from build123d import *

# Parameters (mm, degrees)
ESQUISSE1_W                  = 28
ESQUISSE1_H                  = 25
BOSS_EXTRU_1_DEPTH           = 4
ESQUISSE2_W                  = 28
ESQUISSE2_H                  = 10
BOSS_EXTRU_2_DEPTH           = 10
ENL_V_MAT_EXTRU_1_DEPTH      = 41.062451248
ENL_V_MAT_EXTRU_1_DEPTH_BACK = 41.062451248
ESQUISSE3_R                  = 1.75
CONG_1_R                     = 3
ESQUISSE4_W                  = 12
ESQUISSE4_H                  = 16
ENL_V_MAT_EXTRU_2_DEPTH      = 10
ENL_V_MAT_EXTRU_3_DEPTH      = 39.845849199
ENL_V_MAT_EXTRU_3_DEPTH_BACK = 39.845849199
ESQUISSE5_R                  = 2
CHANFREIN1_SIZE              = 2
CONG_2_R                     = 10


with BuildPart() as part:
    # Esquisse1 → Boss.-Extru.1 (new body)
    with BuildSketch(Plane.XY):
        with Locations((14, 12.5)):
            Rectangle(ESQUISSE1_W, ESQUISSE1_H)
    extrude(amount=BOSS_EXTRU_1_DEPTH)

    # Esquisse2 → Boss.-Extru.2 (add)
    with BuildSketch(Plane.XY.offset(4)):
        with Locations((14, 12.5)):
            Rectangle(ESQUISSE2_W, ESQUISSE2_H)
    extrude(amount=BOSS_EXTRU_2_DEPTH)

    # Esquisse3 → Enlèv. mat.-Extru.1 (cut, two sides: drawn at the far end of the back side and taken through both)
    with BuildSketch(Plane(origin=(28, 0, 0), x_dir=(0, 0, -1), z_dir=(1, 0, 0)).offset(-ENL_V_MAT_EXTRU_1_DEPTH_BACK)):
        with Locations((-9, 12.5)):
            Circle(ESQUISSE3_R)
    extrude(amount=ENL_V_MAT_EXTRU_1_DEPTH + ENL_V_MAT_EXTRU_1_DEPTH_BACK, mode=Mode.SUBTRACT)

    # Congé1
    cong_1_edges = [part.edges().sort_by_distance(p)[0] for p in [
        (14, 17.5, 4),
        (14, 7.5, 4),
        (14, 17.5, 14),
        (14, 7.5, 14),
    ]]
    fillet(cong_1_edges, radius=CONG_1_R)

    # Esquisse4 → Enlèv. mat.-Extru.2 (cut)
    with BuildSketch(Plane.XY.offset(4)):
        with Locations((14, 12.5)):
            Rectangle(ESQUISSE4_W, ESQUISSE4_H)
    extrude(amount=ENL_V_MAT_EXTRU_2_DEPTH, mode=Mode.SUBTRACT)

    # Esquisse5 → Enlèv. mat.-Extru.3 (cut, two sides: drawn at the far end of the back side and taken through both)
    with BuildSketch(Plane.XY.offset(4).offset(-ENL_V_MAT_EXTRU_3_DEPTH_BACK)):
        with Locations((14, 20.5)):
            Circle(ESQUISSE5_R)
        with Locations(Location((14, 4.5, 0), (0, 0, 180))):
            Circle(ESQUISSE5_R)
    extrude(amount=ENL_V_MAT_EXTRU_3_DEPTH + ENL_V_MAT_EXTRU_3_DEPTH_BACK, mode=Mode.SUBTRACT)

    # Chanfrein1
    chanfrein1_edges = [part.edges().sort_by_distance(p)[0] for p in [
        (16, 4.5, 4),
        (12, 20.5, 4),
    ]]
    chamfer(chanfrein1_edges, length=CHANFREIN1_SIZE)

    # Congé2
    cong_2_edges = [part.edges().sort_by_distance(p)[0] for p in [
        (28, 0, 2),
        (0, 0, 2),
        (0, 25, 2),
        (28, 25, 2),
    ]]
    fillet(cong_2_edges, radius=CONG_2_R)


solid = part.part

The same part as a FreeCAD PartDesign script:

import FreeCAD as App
import Part
import Sketcher
Q = App.Units.Quantity


def edges_at(feature, points):
    """Names of the edges that pass closest to the given points."""
    edges = feature.Shape.Edges
    near = lambda p: min(range(len(edges)), key=lambda i: edges[i].distToShape(Part.Vertex(*p))[0])
    return sorted({f"Edge{near(p) + 1}" for p in points})

doc = App.newDocument("Part")
params = doc.addObject("Spreadsheet::Sheet", "Params")
for row, (alias, value) in enumerate([
    ("sketch1_width", "28 mm"),
    ("sketch1_height", "25 mm"),
    ("pad1_length", "4 mm"),
    ("sketch2_width", "28 mm"),
    ("sketch2_height", "10 mm"),
    ("pad2_length", "10 mm"),
    ("sketch3_diameter", "3.5 mm"),
    ("fillet_radius", "3 mm"),
    ("sketch4_width", "12 mm"),
    ("sketch4_height", "16 mm"),
    ("pocket2_length", "10 mm"),
    ("sketch5_diameter", "4 mm"),
    ("chamfer_size", "2 mm"),
    ("fillet2_radius", "10 mm"),
], start=1):
    params.set(f"A{row}", alias)
    params.set(f"B{row}", "=" + value)
    params.setAlias(f"B{row}", alias)

body = doc.addObject("PartDesign::Body", "Body")

sketch1 = body.newObject("Sketcher::SketchObject", "Sketch")
sketch1.AttachmentSupport = (doc.getObject("XY_Plane"), [""])
sketch1.MapMode = "FlatFace"
sketch1.addGeometry(Part.LineSegment(App.Vector(0, 25, 0), App.Vector(0, 0, 0)), False)
sketch1.addGeometry(Part.LineSegment(App.Vector(0, 0, 0), App.Vector(28, 0, 0)), False)
sketch1.addGeometry(Part.LineSegment(App.Vector(28, 0, 0), App.Vector(28, 25, 0)), False)
sketch1.addGeometry(Part.LineSegment(App.Vector(28, 25, 0), App.Vector(0, 25, 0)), False)
sketch1.addConstraint(Sketcher.Constraint("Coincident", 0, 2, 1, 1))
sketch1.addConstraint(Sketcher.Constraint("Coincident", 1, 2, 2, 1))
sketch1.addConstraint(Sketcher.Constraint("Coincident", 2, 2, 3, 1))
sketch1.addConstraint(Sketcher.Constraint("Coincident", 3, 2, 0, 1))
sketch1.addConstraint(Sketcher.Constraint("Vertical", 0))
sketch1.addConstraint(Sketcher.Constraint("Horizontal", 1))
sketch1.addConstraint(Sketcher.Constraint("Vertical", 2))
sketch1.addConstraint(Sketcher.Constraint("Horizontal", 3))
sketch1.addConstraint(Sketcher.Constraint("Coincident", 0, 2, -1, 1))
sketch1.addConstraint(Sketcher.Constraint("DistanceX", 1, 1, 1, 2, Q("28 mm")))
sketch1.addConstraint(Sketcher.Constraint("DistanceY", 0, 2, 0, 1, Q("25 mm")))
sketch1.setExpression("Constraints[9]", "Params.sketch1_width")
sketch1.setExpression("Constraints[10]", "Params.sketch1_height")
pad1 = body.newObject("PartDesign::Pad", "Pad")
pad1.Profile = sketch1
pad1.setExpression("Length", "Params.pad1_length")

sketch2 = body.newObject("Sketcher::SketchObject", "Sketch001")
sketch2.AttachmentSupport = (doc.getObject("XY_Plane"), [""])
sketch2.MapMode = "FlatFace"
sketch2.AttachmentOffset = App.Placement(App.Vector(0, 0, 4), App.Rotation())
sketch2.addGeometry(Part.LineSegment(App.Vector(0, 18, 0), App.Vector(0, 8, 0)), False)
sketch2.addGeometry(Part.LineSegment(App.Vector(0, 8, 0), App.Vector(28, 8, 0)), False)
sketch2.addGeometry(Part.LineSegment(App.Vector(28, 8, 0), App.Vector(28, 18, 0)), False)
sketch2.addGeometry(Part.LineSegment(App.Vector(28, 18, 0), App.Vector(0, 18, 0)), False)
sketch2.addConstraint(Sketcher.Constraint("Coincident", 0, 2, 1, 1))
sketch2.addConstraint(Sketcher.Constraint("Coincident", 1, 2, 2, 1))
sketch2.addConstraint(Sketcher.Constraint("Coincident", 2, 2, 3, 1))
sketch2.addConstraint(Sketcher.Constraint("Coincident", 3, 2, 0, 1))
sketch2.addConstraint(Sketcher.Constraint("Vertical", 0))
sketch2.addConstraint(Sketcher.Constraint("Horizontal", 1))
sketch2.addConstraint(Sketcher.Constraint("Vertical", 2))
sketch2.addConstraint(Sketcher.Constraint("Horizontal", 3))
sketch2.addConstraint(Sketcher.Constraint("PointOnObject", 0, 2, -2))
sketch2.addConstraint(Sketcher.Constraint("DistanceX", 1, 1, 1, 2, Q("28 mm")))
sketch2.addConstraint(Sketcher.Constraint("DistanceY", 0, 2, 0, 1, Q("10 mm")))
sketch2.addConstraint(Sketcher.Constraint("DistanceY", -1, 1, 0, 2, Q("7.5 mm")))
sketch2.setExpression("Constraints[9]", "Params.sketch2_width")
sketch2.setExpression("Constraints[10]", "Params.sketch2_height")
pad2 = body.newObject("PartDesign::Pad", "Pad001")
pad2.Profile = sketch2
pad2.setExpression("Length", "Params.pad2_length")

sketch3 = body.newObject("Sketcher::SketchObject", "Sketch002")
sketch3.AttachmentSupport = (doc.getObject("YZ_Plane"), [""])
sketch3.MapMode = "FlatFace"
sketch3.AttachmentOffset = App.Placement(App.Vector(0, 0, 28), App.Rotation())
sketch3.addGeometry(Part.Circle(App.Vector(12.5, 9, 0), App.Vector(0, 0, 1), 1.8), False)
sketch3.addConstraint(Sketcher.Constraint("Diameter", 0, Q("3.5 mm")))
sketch3.addConstraint(Sketcher.Constraint("DistanceY", -1, 1, 0, 3, Q("9 mm")))
sketch3.addConstraint(Sketcher.Constraint("DistanceX", -1, 1, 0, 3, Q("12.5 mm")))
sketch3.setExpression("Constraints[0]", "Params.sketch3_diameter")
pocket1 = body.newObject("PartDesign::Pocket", "Pocket")
pocket1.Profile = sketch3
pocket1.Type = "ThroughAll"
pocket1.Midplane = True
doc.recompute()

fillet = body.newObject("PartDesign::Fillet", "Fillet")
fillet.Base = (pocket1, edges_at(pocket1, [
    (14, 17.5, 4),
    (14, 7.5, 4),
    (14, 17.5, 14),
    (14, 7.5, 14),
]))
fillet.setExpression("Radius", "Params.fillet_radius")

sketch4 = body.newObject("Sketcher::SketchObject", "Sketch003")
sketch4.AttachmentSupport = (doc.getObject("XY_Plane"), [""])
sketch4.MapMode = "FlatFace"
sketch4.AttachmentOffset = App.Placement(App.Vector(0, 0, 4), App.Rotation())
sketch4.addGeometry(Part.LineSegment(App.Vector(8, 20, 0), App.Vector(8, 4, 0)), False)
sketch4.addGeometry(Part.LineSegment(App.Vector(8, 4, 0), App.Vector(20, 4, 0)), False)
sketch4.addGeometry(Part.LineSegment(App.Vector(20, 4, 0), App.Vector(20, 20, 0)), False)
sketch4.addGeometry(Part.LineSegment(App.Vector(20, 20, 0), App.Vector(8, 20, 0)), False)
sketch4.addConstraint(Sketcher.Constraint("Coincident", 0, 2, 1, 1))
sketch4.addConstraint(Sketcher.Constraint("Coincident", 1, 2, 2, 1))
sketch4.addConstraint(Sketcher.Constraint("Coincident", 2, 2, 3, 1))
sketch4.addConstraint(Sketcher.Constraint("Coincident", 3, 2, 0, 1))
sketch4.addConstraint(Sketcher.Constraint("Vertical", 0))
sketch4.addConstraint(Sketcher.Constraint("Horizontal", 1))
sketch4.addConstraint(Sketcher.Constraint("Vertical", 2))
sketch4.addConstraint(Sketcher.Constraint("Horizontal", 3))
sketch4.addConstraint(Sketcher.Constraint("DistanceX", 1, 1, 1, 2, Q("12 mm")))
sketch4.addConstraint(Sketcher.Constraint("DistanceY", 0, 2, 0, 1, Q("16 mm")))
sketch4.addConstraint(Sketcher.Constraint("DistanceX", -1, 1, 0, 2, Q("8 mm")))
sketch4.addConstraint(Sketcher.Constraint("DistanceY", -1, 1, 0, 2, Q("4.5 mm")))
sketch4.setExpression("Constraints[8]", "Params.sketch4_width")
sketch4.setExpression("Constraints[9]", "Params.sketch4_height")
pocket2 = body.newObject("PartDesign::Pocket", "Pocket001")
pocket2.Profile = sketch4
pocket2.setExpression("Length", "Params.pocket2_length")
pocket2.Reversed = True

sketch5 = body.newObject("Sketcher::SketchObject", "Sketch004")
sketch5.AttachmentSupport = (doc.getObject("XY_Plane"), [""])
sketch5.MapMode = "FlatFace"
sketch5.AttachmentOffset = App.Placement(App.Vector(0, 0, 4), App.Rotation())
sketch5.addGeometry(Part.Circle(App.Vector(14, 20.5, 0), App.Vector(0, 0, 1), 2), False)
sketch5.addGeometry(Part.Circle(App.Vector(14, 4.5, 0), App.Vector(0, 0, 1), 2), False)
sketch5.addConstraint(Sketcher.Constraint("Equal", 0, 1))
sketch5.addConstraint(Sketcher.Constraint("Vertical", 0, 3, 1, 3))
sketch5.addConstraint(Sketcher.Constraint("Diameter", 0, Q("4 mm")))
sketch5.addConstraint(Sketcher.Constraint("DistanceX", -1, 1, 0, 3, Q("14 mm")))
sketch5.addConstraint(Sketcher.Constraint("DistanceY", 1, 3, 0, 3, Q("16 mm")))
sketch5.addConstraint(Sketcher.Constraint("DistanceY", -1, 1, 0, 3, Q("20.5 mm")))
sketch5.setExpression("Constraints[2]", "Params.sketch5_diameter")
pocket3 = body.newObject("PartDesign::Pocket", "Pocket002")
pocket3.Profile = sketch5
pocket3.Type = "ThroughAll"
pocket3.Midplane = True
doc.recompute()

chamfer = body.newObject("PartDesign::Chamfer", "Chamfer")
chamfer.Base = (pocket3, edges_at(pocket3, [(16, 4.5, 4), (12, 20.5, 4)]))
chamfer.setExpression("Size", "Params.chamfer_size")
doc.recompute()

fillet2 = body.newObject("PartDesign::Fillet", "Fillet001")
fillet2.Base = (chamfer, edges_at(chamfer, [
    (28, 0, 2),
    (0, 0, 2),
    (0, 25, 2),
    (28, 25, 2),
]))
fillet2.setExpression("Radius", "Params.fillet2_radius")

doc.recompute()
